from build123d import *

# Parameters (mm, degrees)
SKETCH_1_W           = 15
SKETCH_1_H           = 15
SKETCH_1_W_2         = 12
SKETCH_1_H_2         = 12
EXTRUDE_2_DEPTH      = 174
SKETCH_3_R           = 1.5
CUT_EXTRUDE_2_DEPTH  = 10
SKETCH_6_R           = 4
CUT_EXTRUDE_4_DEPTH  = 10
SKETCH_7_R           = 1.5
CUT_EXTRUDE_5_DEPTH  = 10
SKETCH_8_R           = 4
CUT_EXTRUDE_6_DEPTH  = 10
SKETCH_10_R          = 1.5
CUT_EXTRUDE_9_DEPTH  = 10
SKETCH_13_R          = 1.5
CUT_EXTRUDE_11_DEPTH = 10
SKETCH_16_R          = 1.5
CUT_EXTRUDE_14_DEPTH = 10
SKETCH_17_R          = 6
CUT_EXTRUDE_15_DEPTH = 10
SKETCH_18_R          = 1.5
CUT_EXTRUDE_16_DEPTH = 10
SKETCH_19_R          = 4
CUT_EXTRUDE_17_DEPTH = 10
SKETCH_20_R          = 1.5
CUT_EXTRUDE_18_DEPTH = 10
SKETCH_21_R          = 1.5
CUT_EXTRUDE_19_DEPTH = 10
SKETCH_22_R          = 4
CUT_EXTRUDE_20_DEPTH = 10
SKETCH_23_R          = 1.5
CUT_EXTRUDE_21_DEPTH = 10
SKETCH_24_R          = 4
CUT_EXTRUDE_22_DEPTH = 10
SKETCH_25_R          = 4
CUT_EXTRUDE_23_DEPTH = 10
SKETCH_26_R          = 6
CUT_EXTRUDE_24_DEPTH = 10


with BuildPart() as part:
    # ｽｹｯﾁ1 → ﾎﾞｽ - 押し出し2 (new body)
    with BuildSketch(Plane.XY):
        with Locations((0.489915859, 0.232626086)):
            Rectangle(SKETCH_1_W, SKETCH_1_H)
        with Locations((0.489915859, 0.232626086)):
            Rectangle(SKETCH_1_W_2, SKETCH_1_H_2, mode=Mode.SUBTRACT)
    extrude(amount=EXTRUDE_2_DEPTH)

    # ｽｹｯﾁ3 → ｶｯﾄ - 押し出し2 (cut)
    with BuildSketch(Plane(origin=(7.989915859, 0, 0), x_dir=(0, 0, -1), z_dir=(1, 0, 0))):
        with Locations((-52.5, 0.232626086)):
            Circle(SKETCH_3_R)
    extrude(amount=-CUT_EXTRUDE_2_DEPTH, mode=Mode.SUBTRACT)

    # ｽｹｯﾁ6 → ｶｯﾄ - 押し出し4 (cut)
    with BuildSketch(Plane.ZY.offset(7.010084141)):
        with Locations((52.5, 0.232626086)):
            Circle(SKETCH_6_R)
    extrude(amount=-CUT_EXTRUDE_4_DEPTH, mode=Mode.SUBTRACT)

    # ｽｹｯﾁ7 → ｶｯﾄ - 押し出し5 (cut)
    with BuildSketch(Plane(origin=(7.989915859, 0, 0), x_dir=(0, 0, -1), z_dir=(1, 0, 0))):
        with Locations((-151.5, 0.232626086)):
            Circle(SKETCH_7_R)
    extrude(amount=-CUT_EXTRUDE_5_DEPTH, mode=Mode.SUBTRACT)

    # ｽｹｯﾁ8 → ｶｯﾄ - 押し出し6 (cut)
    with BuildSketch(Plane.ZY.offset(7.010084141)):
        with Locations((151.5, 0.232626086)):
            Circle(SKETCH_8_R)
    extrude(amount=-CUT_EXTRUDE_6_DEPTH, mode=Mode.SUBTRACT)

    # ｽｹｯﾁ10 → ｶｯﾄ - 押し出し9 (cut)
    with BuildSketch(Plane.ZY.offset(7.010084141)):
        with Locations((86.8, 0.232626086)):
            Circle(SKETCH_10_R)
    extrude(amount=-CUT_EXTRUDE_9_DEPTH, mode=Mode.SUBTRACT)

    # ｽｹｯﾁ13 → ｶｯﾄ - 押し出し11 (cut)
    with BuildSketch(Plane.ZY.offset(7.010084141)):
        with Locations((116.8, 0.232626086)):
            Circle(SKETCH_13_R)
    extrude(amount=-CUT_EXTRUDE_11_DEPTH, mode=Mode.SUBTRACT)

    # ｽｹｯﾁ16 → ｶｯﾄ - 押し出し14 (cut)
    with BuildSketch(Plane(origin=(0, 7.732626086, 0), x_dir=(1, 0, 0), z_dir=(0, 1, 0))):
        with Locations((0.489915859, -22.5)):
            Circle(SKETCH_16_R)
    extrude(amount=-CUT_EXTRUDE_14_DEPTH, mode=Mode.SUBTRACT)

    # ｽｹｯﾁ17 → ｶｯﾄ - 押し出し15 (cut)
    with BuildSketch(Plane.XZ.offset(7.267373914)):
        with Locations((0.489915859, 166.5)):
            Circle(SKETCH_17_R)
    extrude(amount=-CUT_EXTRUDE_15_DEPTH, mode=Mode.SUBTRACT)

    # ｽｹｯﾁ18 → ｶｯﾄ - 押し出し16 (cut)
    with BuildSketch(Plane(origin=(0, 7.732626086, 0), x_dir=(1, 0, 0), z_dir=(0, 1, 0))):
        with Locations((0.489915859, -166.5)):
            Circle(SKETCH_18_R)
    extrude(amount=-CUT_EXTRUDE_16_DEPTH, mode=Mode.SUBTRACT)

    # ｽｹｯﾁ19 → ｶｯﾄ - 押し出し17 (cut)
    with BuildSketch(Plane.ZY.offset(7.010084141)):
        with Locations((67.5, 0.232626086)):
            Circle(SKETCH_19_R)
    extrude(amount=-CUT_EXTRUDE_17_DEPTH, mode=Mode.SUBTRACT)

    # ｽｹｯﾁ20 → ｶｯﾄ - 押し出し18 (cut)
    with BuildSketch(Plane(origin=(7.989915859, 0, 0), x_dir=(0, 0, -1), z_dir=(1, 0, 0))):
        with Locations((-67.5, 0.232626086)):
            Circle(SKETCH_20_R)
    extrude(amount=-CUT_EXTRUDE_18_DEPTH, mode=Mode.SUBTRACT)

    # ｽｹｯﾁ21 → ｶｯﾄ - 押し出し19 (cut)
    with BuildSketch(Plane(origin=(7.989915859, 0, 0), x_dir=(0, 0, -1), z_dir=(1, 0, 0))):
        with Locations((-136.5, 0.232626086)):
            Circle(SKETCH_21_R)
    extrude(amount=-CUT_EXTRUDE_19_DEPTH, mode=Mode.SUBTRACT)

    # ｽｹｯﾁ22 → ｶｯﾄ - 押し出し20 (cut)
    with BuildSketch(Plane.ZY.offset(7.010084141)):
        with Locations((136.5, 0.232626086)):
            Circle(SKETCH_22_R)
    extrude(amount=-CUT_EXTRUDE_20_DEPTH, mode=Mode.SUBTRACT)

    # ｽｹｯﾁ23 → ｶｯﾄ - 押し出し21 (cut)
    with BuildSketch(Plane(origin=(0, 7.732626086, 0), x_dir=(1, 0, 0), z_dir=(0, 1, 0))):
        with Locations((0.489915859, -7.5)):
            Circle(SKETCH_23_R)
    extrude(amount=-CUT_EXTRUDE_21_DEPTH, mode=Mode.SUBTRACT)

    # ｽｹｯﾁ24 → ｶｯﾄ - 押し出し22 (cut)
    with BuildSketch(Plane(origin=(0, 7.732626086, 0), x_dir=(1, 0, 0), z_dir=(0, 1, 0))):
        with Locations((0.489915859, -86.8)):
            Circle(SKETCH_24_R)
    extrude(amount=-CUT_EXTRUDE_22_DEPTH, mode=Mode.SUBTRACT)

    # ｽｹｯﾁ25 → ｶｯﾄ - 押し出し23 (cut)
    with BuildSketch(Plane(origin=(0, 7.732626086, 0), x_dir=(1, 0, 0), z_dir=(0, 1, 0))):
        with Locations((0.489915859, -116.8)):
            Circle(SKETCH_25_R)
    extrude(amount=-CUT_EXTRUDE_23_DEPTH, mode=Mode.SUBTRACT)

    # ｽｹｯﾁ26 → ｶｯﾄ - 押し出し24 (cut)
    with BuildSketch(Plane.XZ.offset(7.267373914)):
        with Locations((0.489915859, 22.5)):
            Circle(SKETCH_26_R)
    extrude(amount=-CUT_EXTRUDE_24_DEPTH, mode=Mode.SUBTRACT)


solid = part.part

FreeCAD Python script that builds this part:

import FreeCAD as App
import Part
import Sketcher
from FreeCAD import Vector
Q = App.Units.Quantity

doc = App.newDocument("Part")
params = doc.addObject("Spreadsheet::Sheet", "Params")
for row, (alias, value) in enumerate([
    ("sketch1_width", "15 mm"),
    ("sketch1_width2", "12 mm"),
    ("pad1_length", "174 mm"),
    ("sketch2_diameter", "3 mm"),
    ("pocket1_length", "10 mm"),
    ("sketch3_diameter", "8 mm"),
    ("pocket2_length", "10 mm"),
    ("sketch4_diameter", "3 mm"),
    ("pocket3_length", "10 mm"),
    ("sketch5_diameter", "8 mm"),
    ("pocket4_length", "10 mm"),
    ("sketch6_diameter", "3 mm"),
    ("pocket5_length", "10 mm"),
    ("sketch7_diameter", "3 mm"),
    ("pocket6_length", "10 mm"),
    ("sketch8_diameter", "3 mm"),
    ("pocket7_length", "10 mm"),
    ("sketch9_diameter", "12 mm"),
    ("pocket8_length", "10 mm"),
    ("sketch10_diameter", "3 mm"),
    ("pocket9_length", "10 mm"),
    ("sketch11_diameter", "8 mm"),
    ("pocket10_length", "10 mm"),
    ("sketch12_diameter", "3 mm"),
    ("pocket11_length", "10 mm"),
    ("sketch13_diameter", "3 mm"),
    ("pocket12_length", "10 mm"),
    ("sketch14_diameter", "8 mm"),
    ("pocket13_length", "10 mm"),
    ("sketch15_diameter", "3 mm"),
    ("pocket14_length", "10 mm"),
    ("sketch16_diameter", "8 mm"),
    ("pocket15_length", "10 mm"),
    ("sketch17_diameter", "8 mm"),
    ("pocket16_length", "10 mm"),
    ("sketch18_diameter", "12 mm"),
    ("pocket17_length", "10 mm"),
], start=1):
    params.set(f"A{row}", alias)
    params.set(f"B{row}", "=" + value)
    params.setAlias(f"B{row}", alias)

body = doc.addObject("PartDesign::Body", "Body")

# Sketch on XY plane
sketch1 = body.newObject("Sketcher::SketchObject", "Sketch")
sketch1.AttachmentSupport = (doc.getObject("XY_Plane"), [""])
sketch1.MapMode = "FlatFace"
sketch1.addGeometry([
    Part.LineSegment(Vector(-7, 8, 0), Vector(-7, -7, 0)),  # 0
    Part.LineSegment(Vector(-7, -7, 0), Vector(8, -7, 0)),  # 1
    Part.LineSegment(Vector(8, -7, 0), Vector(8, 8, 0)),  # 2
    Part.LineSegment(Vector(8, 8, 0), Vector(-7, 8, 0)),  # 3
    Part.LineSegment(Vector(6, -6, 0), Vector(-6, -6, 0)),  # 4
    Part.LineSegment(Vector(-6, -6, 0), Vector(-6, 6, 0)),  # 5
    Part.LineSegment(Vector(-6, 6, 0), Vector(6, 6, 0)),  # 6
    Part.LineSegment(Vector(6, 6, 0), Vector(6, -6, 0)),  # 7
], False)
sketch1.addConstraint([
    Sketcher.Constraint("Coincident", 0, 2, 1, 1),
    Sketcher.Constraint("Coincident", 1, 2, 2, 1),
    Sketcher.Constraint("Coincident", 2, 2, 3, 1),
    Sketcher.Constraint("Coincident", 3, 2, 0, 1),
    Sketcher.Constraint("Coincident", 4, 2, 5, 1),
    Sketcher.Constraint("Coincident", 5, 2, 6, 1),
    Sketcher.Constraint("Coincident", 6, 2, 7, 1),
    Sketcher.Constraint("Coincident", 7, 2, 4, 1),
    Sketcher.Constraint("Vertical", 0),
    Sketcher.Constraint("Horizontal", 1),
    Sketcher.Constraint("Vertical", 2),
    Sketcher.Constraint("Horizontal", 3),
    Sketcher.Constraint("Horizontal", 4),
    Sketcher.Constraint("Vertical", 5),
    Sketcher.Constraint("Horizontal", 6),
    Sketcher.Constraint("Vertical", 7),
    Sketcher.Constraint("Equal", 3, 0),
    Sketcher.Constraint("Equal", 6, 5),
    Sketcher.Constraint("DistanceX", 1, 1, 1, 2, Q("15 mm")),
    Sketcher.Constraint("DistanceX", 4, 2, 4, 1, Q("12 mm")),
    Sketcher.Constraint("DistanceX", 0, 2, 4, 2, Q("1.5 mm")),
    Sketcher.Constraint("DistanceY", 0, 2, 4, 2, Q("1.5 mm")),
    Sketcher.Constraint("DistanceX", 0, 2, -1, 1, Q("7.010084 mm")),
    Sketcher.Constraint("DistanceY", 0, 2, -1, 1, Q("7.267374 mm")),
])
sketch1.setExpression("Constraints[18]", "Params.sketch1_width")
sketch1.setExpression("Constraints[19]", "Params.sketch1_width2")
pad1 = body.newObject("PartDesign::Pad", "Pad")
pad1.Profile = sketch1
pad1.setExpression("Length", "Params.pad1_length")

# Sketch on YZ plane
sketch2 = body.newObject("Sketcher::SketchObject", "Sketch001")
sketch2.AttachmentSupport = (doc.getObject("YZ_Plane"), [""])
sketch2.MapMode = "FlatFace"
sketch2.AttachmentOffset = App.Placement(Vector(0, 0, 7.989916), App.Rotation())
sketch2.addGeometry(Part.Circle(Vector(0.2, 52.5, 0), Vector(0, 0, 1), 1.5), False)
sketch2.addConstraint([
    Sketcher.Constraint("Diameter", 0, Q("3 mm")),
    Sketcher.Constraint("DistanceY", -1, 1, 0, 3, Q("52.5 mm")),
    Sketcher.Constraint("DistanceX", -1, 1, 0, 3, Q("0.232626 mm")),
])
sketch2.setExpression("Constraints[0]", "Params.sketch2_diameter")
pocket1 = body.newObject("PartDesign::Pocket", "Pocket")
pocket1.Profile = sketch2
pocket1.setExpression("Length", "Params.pocket1_length")

# Sketch on YZ plane
sketch3 = body.newObject("Sketcher::SketchObject", "Sketch002")
sketch3.AttachmentSupport = (doc.getObject("YZ_Plane"), [""])
sketch3.MapMode = "FlatFace"
sketch3.AttachmentOffset = App.Placement(Vector(0, 0, -7.010084), App.Rotation())
sketch3.addGeometry(Part.Circle(Vector(0.2, 52.5, 0), Vector(0, 0, 1), 4), False)
sketch3.addConstraint([
    Sketcher.Constraint("Diameter", 0, Q("8 mm")),
    Sketcher.Constraint("DistanceY", -1, 1, 0, 3, Q("52.5 mm")),
    Sketcher.Constraint("DistanceX", -1, 1, 0, 3, Q("0.232626 mm")),
])
sketch3.setExpression("Constraints[0]", "Params.sketch3_diameter")
pocket2 = body.newObject("PartDesign::Pocket", "Pocket001")
pocket2.Profile = sketch3
pocket2.setExpression("Length", "Params.pocket2_length")
pocket2.Reversed = True

# Sketch on YZ plane
sketch4 = body.newObject("Sketcher::SketchObject", "Sketch003")
sketch4.AttachmentSupport = (doc.getObject("YZ_Plane"), [""])
sketch4.MapMode = "FlatFace"
sketch4.AttachmentOffset = App.Placement(Vector(0, 0, 7.989916), App.Rotation())
sketch4.addGeometry(Part.Circle(Vector(0.2, 151.5, 0), Vector(0, 0, 1), 1.5), False)
sketch4.addConstraint([
    Sketcher.Constraint("Diameter", 0, Q("3 mm")),
    Sketcher.Constraint("DistanceY", -1, 1, 0, 3, Q("151.5 mm")),
    Sketcher.Constraint("DistanceX", -1, 1, 0, 3, Q("0.232626 mm")),
])
sketch4.setExpression("Constraints[0]", "Params.sketch4_diameter")
pocket3 = body.newObject("PartDesign::Pocket", "Pocket002")
pocket3.Profile = sketch4
pocket3.setExpression("Length", "Params.pocket3_length")

# Sketch on YZ plane
sketch5 = body.newObject("Sketcher::SketchObject", "Sketch004")
sketch5.AttachmentSupport = (doc.getObject("YZ_Plane"), [""])
sketch5.MapMode = "FlatFace"
sketch5.AttachmentOffset = App.Placement(Vector(0, 0, -7.010084), App.Rotation())
sketch5.addGeometry(Part.Circle(Vector(0.2, 151.5, 0), Vector(0, 0, 1), 4), False)
sketch5.addConstraint([
    Sketcher.Constraint("Diameter", 0, Q("8 mm")),
    Sketcher.Constraint("DistanceY", -1, 1, 0, 3, Q("151.5 mm")),
    Sketcher.Constraint("DistanceX", -1, 1, 0, 3, Q("0.232626 mm")),
])
sketch5.setExpression("Constraints[0]", "Params.sketch5_diameter")
pocket4 = body.newObject("PartDesign::Pocket", "Pocket003")
pocket4.Profile = sketch5
pocket4.setExpression("Length", "Params.pocket4_length")
pocket4.Reversed = True

# Sketch on YZ plane
sketch6 = body.newObject("Sketcher::SketchObject", "Sketch005")
sketch6.AttachmentSupport = (doc.getObject("YZ_Plane"), [""])
sketch6.MapMode = "FlatFace"
sketch6.AttachmentOffset = App.Placement(Vector(0, 0, -7.010084), App.Rotation())
sketch6.addGeometry(Part.Circle(Vector(0.2, 86.8, 0), Vector(0, 0, 1), 1.5), False)
sketch6.addConstraint([
    Sketcher.Constraint("Diameter", 0, Q("3 mm")),
    Sketcher.Constraint("DistanceY", -1, 1, 0, 3, Q("86.8 mm")),
    Sketcher.Constraint("DistanceX", -1, 1, 0, 3, Q("0.232626 mm")),
])
sketch6.setExpression("Constraints[0]", "Params.sketch6_diameter")
pocket5 = body.newObject("PartDesign::Pocket", "Pocket004")
pocket5.Profile = sketch6
pocket5.setExpression("Length", "Params.pocket5_length")
pocket5.Reversed = True

# Sketch on YZ plane
sketch7 = body.newObject("Sketcher::SketchObject", "Sketch006")
sketch7.AttachmentSupport = (doc.getObject("YZ_Plane"), [""])
sketch7.MapMode = "FlatFace"
sketch7.AttachmentOffset = App.Placement(Vector(0, 0, -7.010084), App.Rotation())
sketch7.addGeometry(Part.Circle(Vector(0.2, 116.8, 0), Vector(0, 0, 1), 1.5), False)
sketch7.addConstraint([
    Sketcher.Constraint("Diameter", 0, Q("3 mm")),
    Sketcher.Constraint("DistanceY", -1, 1, 0, 3, Q("116.8 mm")),
    Sketcher.Constraint("DistanceX", -1, 1, 0, 3, Q("0.232626 mm")),
])
sketch7.setExpression("Constraints[0]", "Params.sketch7_diameter")
pocket6 = body.newObject("PartDesign::Pocket", "Pocket005")
pocket6.Profile = sketch7
pocket6.setExpression("Length", "Params.pocket6_length")
pocket6.Reversed = True

# Sketch on XZ plane
sketch8 = body.newObject("Sketcher::SketchObject", "Sketch007")
sketch8.AttachmentSupport = (doc.getObject("XZ_Plane"), [""])
sketch8.MapMode = "FlatFace"
sketch8.AttachmentOffset = App.Placement(Vector(0, 0, -7.732626), App.Rotation())
sketch8.addGeometry(Part.Circle(Vector(0.5, 22.5, 0), Vector(0, 0, 1), 1.5), False)
sketch8.addConstraint([
    Sketcher.Constraint("Diameter", 0, Q("3 mm")),
    Sketcher.Constraint("DistanceY", -1, 1, 0, 3, Q("22.5 mm")),
    Sketcher.Constraint("DistanceX", -1, 1, 0, 3, Q("0.489916 mm")),
])
sketch8.setExpression("Constraints[0]", "Params.sketch8_diameter")
pocket7 = body.newObject("PartDesign::Pocket", "Pocket006")
pocket7.Profile = sketch8
pocket7.setExpression("Length", "Params.pocket7_length")
pocket7.Reversed = True

# Sketch on XZ plane
sketch9 = body.newObject("Sketcher::SketchObject", "Sketch008")
sketch9.AttachmentSupport = (doc.getObject("XZ_Plane"), [""])
sketch9.MapMode = "FlatFace"
sketch9.AttachmentOffset = App.Placement(Vector(0, 0, 7.267374), App.Rotation())
sketch9.addGeometry(Part.Circle(Vector(0, 166, 0), Vector(0, 0, 1), 6), False)
sketch9.addConstraint([
    Sketcher.Constraint("Diameter", 0, Q("12 mm")),
    Sketcher.Constraint("DistanceY", -1, 1, 0, 3, Q("166.5 mm")),
    Sketcher.Constraint("DistanceX", -1, 1, 0, 3, Q("0.489916 mm")),
])
sketch9.setExpression("Constraints[0]", "Params.sketch9_diameter")
pocket8 = body.newObject("PartDesign::Pocket", "Pocket007")
pocket8.Profile = sketch9
pocket8.setExpression("Length", "Params.pocket8_length")

# Sketch on XZ plane
sketch10 = body.newObject("Sketcher::SketchObject", "Sketch009")
sketch10.AttachmentSupport = (doc.getObject("XZ_Plane"), [""])
sketch10.MapMode = "FlatFace"
sketch10.AttachmentOffset = App.Placement(Vector(0, 0, -7.732626), App.Rotation())
sketch10.addGeometry(Part.Circle(Vector(0.5, 166.5, 0), Vector(0, 0, 1), 1.5), False)
sketch10.addConstraint([
    Sketcher.Constraint("Diameter", 0, Q("3 mm")),
    Sketcher.Constraint("DistanceY", -1, 1, 0, 3, Q("166.5 mm")),
    Sketcher.Constraint("DistanceX", -1, 1, 0, 3, Q("0.489916 mm")),
])
sketch10.setExpression("Constraints[0]", "Params.sketch10_diameter")
pocket9 = body.newObject("PartDesign::Pocket", "Pocket008")
pocket9.Profile = sketch10
pocket9.setExpression("Length", "Params.pocket9_length")
pocket9.Reversed = True

# Sketch on YZ plane
sketch11 = body.newObject("Sketcher::SketchObject", "Sketch010")
sketch11.AttachmentSupport = (doc.getObject("YZ_Plane"), [""])
sketch11.MapMode = "FlatFace"
sketch11.AttachmentOffset = App.Placement(Vector(0, 0, -7.010084), App.Rotation())
sketch11.addGeometry(Part.Circle(Vector(0.2, 67.5, 0), Vector(0, 0, 1), 4), False)
sketch11.addConstraint([
    Sketcher.Constraint("Diameter", 0, Q("8 mm")),
    Sketcher.Constraint("DistanceY", -1, 1, 0, 3, Q("67.5 mm")),
    Sketcher.Constraint("DistanceX", -1, 1, 0, 3, Q("0.232626 mm")),
])
sketch11.setExpression("Constraints[0]", "Params.sketch11_diameter")
pocket10 = body.newObject("PartDesign::Pocket", "Pocket009")
pocket10.Profile = sketch11
pocket10.setExpression("Length", "Params.pocket10_length")
pocket10.Reversed = True

# Sketch on YZ plane
sketch12 = body.newObject("Sketcher::SketchObject", "Sketch011")
sketch12.AttachmentSupport = (doc.getObject("YZ_Plane"), [""])
sketch12.MapMode = "FlatFace"
sketch12.AttachmentOffset = App.Placement(Vector(0, 0, 7.989916), App.Rotation())
sketch12.addGeometry(Part.Circle(Vector(0.2, 67.5, 0), Vector(0, 0, 1), 1.5), False)
sketch12.addConstraint([
    Sketcher.Constraint("Diameter", 0, Q("3 mm")),
    Sketcher.Constraint("DistanceY", -1, 1, 0, 3, Q("67.5 mm")),
    Sketcher.Constraint("DistanceX", -1, 1, 0, 3, Q("0.232626 mm")),
])
sketch12.setExpression("Constraints[0]", "Params.sketch12_diameter")
pocket11 = body.newObject("PartDesign::Pocket", "Pocket010")
pocket11.Profile = sketch12
pocket11.setExpression("Length", "Params.pocket11_length")

# Sketch on YZ plane
sketch13 = body.newObject("Sketcher::SketchObject", "Sketch012")
sketch13.AttachmentSupport = (doc.getObject("YZ_Plane"), [""])
sketch13.MapMode = "FlatFace"
sketch13.AttachmentOffset = App.Placement(Vector(0, 0, 7.989916), App.Rotation())
sketch13.addGeometry(Part.Circle(Vector(0.2, 136.5, 0), Vector(0, 0, 1), 1.5), False)
sketch13.addConstraint([
    Sketcher.Constraint("Diameter", 0, Q("3 mm")),
    Sketcher.Constraint("DistanceY", -1, 1, 0, 3, Q("136.5 mm")),
    Sketcher.Constraint("DistanceX", -1, 1, 0, 3, Q("0.232626 mm")),
])
sketch13.setExpression("Constraints[0]", "Params.sketch13_diameter")
pocket12 = body.newObject("PartDesign::Pocket", "Pocket011")
pocket12.Profile = sketch13
pocket12.setExpression("Length", "Params.pocket12_length")

# Sketch on YZ plane
sketch14 = body.newObject("Sketcher::SketchObject", "Sketch013")
sketch14.AttachmentSupport = (doc.getObject("YZ_Plane"), [""])
sketch14.MapMode = "FlatFace"
sketch14.AttachmentOffset = App.Placement(Vector(0, 0, -7.010084), App.Rotation())
sketch14.addGeometry(Part.Circle(Vector(0.2, 136.5, 0), Vector(0, 0, 1), 4), False)
sketch14.addConstraint([
    Sketcher.Constraint("Diameter", 0, Q("8 mm")),
    Sketcher.Constraint("DistanceY", -1, 1, 0, 3, Q("136.5 mm")),
    Sketcher.Constraint("DistanceX", -1, 1, 0, 3, Q("0.232626 mm")),
])
sketch14.setExpression("Constraints[0]", "Params.sketch14_diameter")
pocket13 = body.newObject("PartDesign::Pocket", "Pocket012")
pocket13.Profile = sketch14
pocket13.setExpression("Length", "Params.pocket13_length")
pocket13.Reversed = True

# Sketch on XZ plane
sketch15 = body.newObject("Sketcher::SketchObject", "Sketch014")
sketch15.AttachmentSupport = (doc.getObject("XZ_Plane"), [""])
sketch15.MapMode = "FlatFace"
sketch15.AttachmentOffset = App.Placement(Vector(0, 0, -7.732626), App.Rotation())
sketch15.addGeometry(Part.Circle(Vector(0.5, 7.5, 0), Vector(0, 0, 1), 1.5), False)
sketch15.addConstraint([
    Sketcher.Constraint("Diameter", 0, Q("3 mm")),
    Sketcher.Constraint("DistanceY", -1, 1, 0, 3, Q("7.5 mm")),
    Sketcher.Constraint("DistanceX", -1, 1, 0, 3, Q("0.489916 mm")),
])
sketch15.setExpression("Constraints[0]", "Params.sketch15_diameter")
pocket14 = body.newObject("PartDesign::Pocket", "Pocket013")
pocket14.Profile = sketch15
pocket14.setExpression("Length", "Params.pocket14_length")
pocket14.Reversed = True

# Sketch on XZ plane
sketch16 = body.newObject("Sketcher::SketchObject", "Sketch015")
sketch16.AttachmentSupport = (doc.getObject("XZ_Plane"), [""])
sketch16.MapMode = "FlatFace"
sketch16.AttachmentOffset = App.Placement(Vector(0, 0, -7.732626), App.Rotation())
sketch16.addGeometry(Part.Circle(Vector(0.5, 86.8, 0), Vector(0, 0, 1), 4), False)
sketch16.addConstraint([
    Sketcher.Constraint("Diameter", 0, Q("8 mm")),
    Sketcher.Constraint("DistanceY", -1, 1, 0, 3, Q("86.8 mm")),
    Sketcher.Constraint("DistanceX", -1, 1, 0, 3, Q("0.489916 mm")),
])
sketch16.setExpression("Constraints[0]", "Params.sketch16_diameter")
pocket15 = body.newObject("PartDesign::Pocket", "Pocket014")
pocket15.Profile = sketch16
pocket15.setExpression("Length", "Params.pocket15_length")
pocket15.Reversed = True

# Sketch on XZ plane
sketch17 = body.newObject("Sketcher::SketchObject", "Sketch016")
sketch17.AttachmentSupport = (doc.getObject("XZ_Plane"), [""])
sketch17.MapMode = "FlatFace"
sketch17.AttachmentOffset = App.Placement(Vector(0, 0, -7.732626), App.Rotation())
sketch17.addGeometry(Part.Circle(Vector(0.5, 116.8, 0), Vector(0, 0, 1), 4), False)
sketch17.addConstraint([
    Sketcher.Constraint("Diameter", 0, Q("8 mm")),
    Sketcher.Constraint("DistanceY", -1, 1, 0, 3, Q("116.8 mm")),
    Sketcher.Constraint("DistanceX", -1, 1, 0, 3, Q("0.489916 mm")),
])
sketch17.setExpression("Constraints[0]", "Params.sketch17_diameter")
pocket16 = body.newObject("PartDesign::Pocket", "Pocket015")
pocket16.Profile = sketch17
pocket16.setExpression("Length", "Params.pocket16_length")
pocket16.Reversed = True

# Sketch on XZ plane
sketch18 = body.newObject("Sketcher::SketchObject", "Sketch017")
sketch18.AttachmentSupport = (doc.getObject("XZ_Plane"), [""])
sketch18.MapMode = "FlatFace"
sketch18.AttachmentOffset = App.Placement(Vector(0, 0, 7.267374), App.Rotation())
sketch18.addGeometry(Part.Circle(Vector(0, 22, 0), Vector(0, 0, 1), 6), False)
sketch18.addConstraint([
    Sketcher.Constraint("Diameter", 0, Q("12 mm")),
    Sketcher.Constraint("DistanceY", -1, 1, 0, 3, Q("22.5 mm")),
    Sketcher.Constraint("DistanceX", -1, 1, 0, 3, Q("0.489916 mm")),
])
sketch18.setExpression("Constraints[0]", "Params.sketch18_diameter")
pocket17 = body.newObject("PartDesign::Pocket", "Pocket016")
pocket17.Profile = sketch18
pocket17.setExpression("Length", "Params.pocket17_length")

doc.recompute()
